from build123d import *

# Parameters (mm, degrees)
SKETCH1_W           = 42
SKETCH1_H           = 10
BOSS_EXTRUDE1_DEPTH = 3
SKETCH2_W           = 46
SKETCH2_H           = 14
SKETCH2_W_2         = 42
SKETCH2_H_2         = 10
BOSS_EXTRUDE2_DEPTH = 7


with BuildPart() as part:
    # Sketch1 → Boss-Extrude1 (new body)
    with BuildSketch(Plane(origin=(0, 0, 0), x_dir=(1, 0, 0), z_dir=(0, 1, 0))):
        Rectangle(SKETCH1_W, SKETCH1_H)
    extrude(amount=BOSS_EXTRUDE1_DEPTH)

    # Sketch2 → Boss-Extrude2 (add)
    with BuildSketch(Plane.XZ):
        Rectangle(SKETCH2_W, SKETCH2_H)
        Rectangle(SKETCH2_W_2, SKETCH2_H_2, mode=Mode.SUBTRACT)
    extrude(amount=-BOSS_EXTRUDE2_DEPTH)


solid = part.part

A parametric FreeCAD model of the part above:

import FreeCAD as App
import Part
import Sketcher
Q = App.Units.Quantity

doc = App.newDocument("Part")
body = doc.addObject("PartDesign::Body", "Body")

# Sketch on XZ plane
sketch1 = doc.addObject("Sketcher::SketchObject", "Sketch")
body.addObject(sketch1)
sketch1.AttachmentSupport = (doc.XZ_Plane, [""])
sketch1.MapMode = "FlatFace"
sketch1.addGeometry([
    Part.LineSegment(App.Vector(-21, -5, 0), App.Vector(-21, 5, 0)),
    Part.LineSegment(App.Vector(-21, 5, 0), App.Vector(21, 5, 0)),
    Part.LineSegment(App.Vector(21, 5, 0), App.Vector(21, -5, 0)),
    Part.LineSegment(App.Vector(21, -5, 0), App.Vector(-21, -5, 0)),
], False)
sketch1.addConstraint([
    Sketcher.Constraint("Coincident", 0, 2, 1, 1),
    Sketcher.Constraint("Coincident", 1, 2, 2, 1),
    Sketcher.Constraint("Coincident", 2, 2, 3, 1),
    Sketcher.Constraint("Coincident", 3, 2, 0, 1),
    Sketcher.Constraint("Vertical", 0),
    Sketcher.Constraint("Horizontal", 1),
    Sketcher.Constraint("Vertical", 2),
    Sketcher.Constraint("Horizontal", 3),
    Sketcher.Constraint("Symmetric", 0, 2, 2, 2, -1, 1),
    Sketcher.Constraint("DistanceX", 1, 1, 1, 2, Q("42 mm")),
    Sketcher.Constraint("DistanceY", 0, 1, 0, 2, Q("10 mm")),
])
pad1 = doc.addObject("PartDesign::Pad", "Pad")
body.addObject(pad1)
pad1.Profile = sketch1
pad1.Length = 3
pad1.Reversed = True

# Sketch on XZ plane
sketch2 = doc.addObject("Sketcher::SketchObject", "Sketch001")
body.addObject(sketch2)
sketch2.AttachmentSupport = (doc.XZ_Plane, [""])
sketch2.MapMode = "FlatFace"
sketch2.addGeometry([
    Part.LineSegment(App.Vector(-23, 7, 0), App.Vector(-23, -7, 0)),  # 0
    Part.LineSegment(App.Vector(-23, -7, 0), App.Vector(23, -7, 0)),  # 1
    Part.LineSegment(App.Vector(23, -7, 0), App.Vector(23, 7, 0)),  # 2
    Part.LineSegment(App.Vector(23, 7, 0), App.Vector(-23, 7, 0)),  # 3
    Part.LineSegment(App.Vector(21, -5, 0), App.Vector(-21, -5, 0)),  # 4
    Part.LineSegment(App.Vector(-21, -5, 0), App.Vector(-21, 5, 0)),  # 5
    Part.LineSegment(App.Vector(-21, 5, 0), App.Vector(21, 5, 0)),  # 6
    Part.LineSegment(App.Vector(21, 5, 0), App.Vector(21, -5, 0)),  # 7
], False)
sketch2.addConstraint([
    Sketcher.Constraint("Coincident", 0, 2, 1, 1),
    Sketcher.Constraint("Coincident", 1, 2, 2, 1),
    Sketcher.Constraint("Coincident", 2, 2, 3, 1),
    Sketcher.Constraint("Coincident", 3, 2, 0, 1),
    Sketcher.Constraint("Coincident", 4, 2, 5, 1),
    Sketcher.Constraint("Coincident", 5, 2, 6, 1),
    Sketcher.Constraint("Coincident", 6, 2, 7, 1),
    Sketcher.Constraint("Coincident", 7, 2, 4, 1),
    Sketcher.Constraint("Vertical", 0),
    Sketcher.Constraint("Horizontal", 1),
    Sketcher.Constraint("Vertical", 2),
    Sketcher.Constraint("Horizontal", 3),
    Sketcher.Constraint("Horizontal", 4),
    Sketcher.Constraint("Vertical", 5),
    Sketcher.Constraint("Horizontal", 6),
    Sketcher.Constraint("Vertical", 7),
    Sketcher.Constraint("Symmetric", 0, 2, 2, 2, -1, 1),
    Sketcher.Constraint("Symmetric", 4, 2, 6, 2, -1, 1),
    Sketcher.Constraint("DistanceX", 1, 1, 1, 2, Q("46 mm")),
    Sketcher.Constraint("DistanceX", 4, 2, 4, 1, Q("42 mm")),
    Sketcher.Constraint("DistanceY", 0, 2, 0, 1, Q("14 mm")),
    Sketcher.Constraint("DistanceY", 5, 1, 5, 2, Q("10 mm")),
])
pad2 = doc.addObject("PartDesign::Pad", "Pad001")
body.addObject(pad2)
pad2.Profile = sketch2
pad2.Length = 7
pad2.Reversed = True

doc.recompute()
